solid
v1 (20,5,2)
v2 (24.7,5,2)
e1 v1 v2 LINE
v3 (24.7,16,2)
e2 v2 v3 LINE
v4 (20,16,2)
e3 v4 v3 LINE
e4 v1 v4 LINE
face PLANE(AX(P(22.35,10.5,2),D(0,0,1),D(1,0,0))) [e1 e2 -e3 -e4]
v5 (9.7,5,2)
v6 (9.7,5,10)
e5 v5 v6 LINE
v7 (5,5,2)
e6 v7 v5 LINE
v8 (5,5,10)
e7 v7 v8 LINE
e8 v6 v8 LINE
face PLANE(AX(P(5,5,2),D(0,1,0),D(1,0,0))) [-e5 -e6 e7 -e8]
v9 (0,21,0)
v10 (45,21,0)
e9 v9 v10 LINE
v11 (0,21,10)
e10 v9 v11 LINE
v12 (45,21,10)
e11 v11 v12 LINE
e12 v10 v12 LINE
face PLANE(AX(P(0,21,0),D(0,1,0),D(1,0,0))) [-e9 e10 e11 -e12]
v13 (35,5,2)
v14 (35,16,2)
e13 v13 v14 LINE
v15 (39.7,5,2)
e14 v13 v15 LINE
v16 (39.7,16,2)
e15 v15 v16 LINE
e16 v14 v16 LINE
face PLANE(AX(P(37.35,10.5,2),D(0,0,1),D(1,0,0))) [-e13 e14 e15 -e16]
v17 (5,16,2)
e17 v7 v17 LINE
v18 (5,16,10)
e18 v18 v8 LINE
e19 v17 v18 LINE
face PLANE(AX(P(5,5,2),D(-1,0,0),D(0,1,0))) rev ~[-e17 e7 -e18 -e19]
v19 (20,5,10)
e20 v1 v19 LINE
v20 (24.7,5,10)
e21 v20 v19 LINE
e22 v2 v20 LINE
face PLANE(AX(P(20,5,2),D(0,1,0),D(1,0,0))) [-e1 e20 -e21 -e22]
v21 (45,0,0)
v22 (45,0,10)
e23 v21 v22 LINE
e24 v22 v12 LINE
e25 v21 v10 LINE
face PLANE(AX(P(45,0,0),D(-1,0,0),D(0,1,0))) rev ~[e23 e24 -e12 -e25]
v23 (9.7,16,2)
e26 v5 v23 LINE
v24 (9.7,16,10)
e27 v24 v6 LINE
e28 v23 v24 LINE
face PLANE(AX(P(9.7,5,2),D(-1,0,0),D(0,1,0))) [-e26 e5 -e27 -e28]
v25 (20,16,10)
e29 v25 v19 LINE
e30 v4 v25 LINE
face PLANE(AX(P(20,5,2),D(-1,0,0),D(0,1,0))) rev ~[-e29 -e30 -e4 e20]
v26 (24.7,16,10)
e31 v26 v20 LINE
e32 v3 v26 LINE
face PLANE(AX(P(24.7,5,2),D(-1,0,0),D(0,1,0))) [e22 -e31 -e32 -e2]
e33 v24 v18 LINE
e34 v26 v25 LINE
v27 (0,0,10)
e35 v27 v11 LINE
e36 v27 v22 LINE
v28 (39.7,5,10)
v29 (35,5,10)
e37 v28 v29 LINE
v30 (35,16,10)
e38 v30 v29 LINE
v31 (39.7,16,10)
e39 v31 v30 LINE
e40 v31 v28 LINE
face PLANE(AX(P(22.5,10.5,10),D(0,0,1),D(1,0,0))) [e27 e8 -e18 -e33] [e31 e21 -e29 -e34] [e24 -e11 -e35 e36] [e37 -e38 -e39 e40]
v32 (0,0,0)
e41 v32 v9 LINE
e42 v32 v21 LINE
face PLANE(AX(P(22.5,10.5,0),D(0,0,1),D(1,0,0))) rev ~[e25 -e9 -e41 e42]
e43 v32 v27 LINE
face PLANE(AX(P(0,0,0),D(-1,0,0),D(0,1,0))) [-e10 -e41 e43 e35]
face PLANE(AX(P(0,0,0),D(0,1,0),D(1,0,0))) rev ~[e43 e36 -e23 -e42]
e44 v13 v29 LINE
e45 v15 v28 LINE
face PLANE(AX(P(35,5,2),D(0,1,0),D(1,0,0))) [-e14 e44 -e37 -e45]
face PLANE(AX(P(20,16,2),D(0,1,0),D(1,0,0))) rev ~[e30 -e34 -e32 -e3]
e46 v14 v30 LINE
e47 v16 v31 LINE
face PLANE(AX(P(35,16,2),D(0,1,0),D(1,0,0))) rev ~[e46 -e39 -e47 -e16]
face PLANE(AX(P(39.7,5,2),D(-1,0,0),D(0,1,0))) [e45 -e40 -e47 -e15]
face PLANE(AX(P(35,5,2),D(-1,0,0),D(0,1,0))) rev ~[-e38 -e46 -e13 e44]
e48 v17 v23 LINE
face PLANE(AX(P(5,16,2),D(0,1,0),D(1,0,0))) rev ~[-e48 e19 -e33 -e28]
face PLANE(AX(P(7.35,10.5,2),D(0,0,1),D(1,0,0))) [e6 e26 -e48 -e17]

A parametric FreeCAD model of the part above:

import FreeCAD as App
import Part
import Sketcher

V = App.Vector

doc = App.newDocument("Part")
body = doc.addObject("PartDesign::Body", "Body")

# Sketch on XY plane
sketch1 = doc.addObject("Sketcher::SketchObject", "Sketch")
body.addObject(sketch1)
sketch1.AttachmentSupport = (doc.XY_Plane, [""])
sketch1.MapMode = "FlatFace"
sketch1.addGeometry(Part.LineSegment(V(15, 11, 0), V(15, 0, 0)), False)
sketch1.addGeometry(Part.LineSegment(V(15, 0, 0), V(19.7, 0, 0)), False)
sketch1.addGeometry(Part.LineSegment(V(19.7, 0, 0), V(19.7, 11, 0)), False)
sketch1.addGeometry(Part.LineSegment(V(19.7, 11, 0), V(15, 11, 0)), False)
sketch1.addConstraint(Sketcher.Constraint("Coincident", 0, 2, 1, 1))
sketch1.addConstraint(Sketcher.Constraint("Coincident", 1, 2, 2, 1))
sketch1.addConstraint(Sketcher.Constraint("Coincident", 2, 2, 3, 1))
sketch1.addConstraint(Sketcher.Constraint("Coincident", 3, 2, 0, 1))
sketch1.addConstraint(Sketcher.Constraint("Vertical", 0))
sketch1.addConstraint(Sketcher.Constraint("Horizontal", 1))
sketch1.addConstraint(Sketcher.Constraint("Vertical", 2))
sketch1.addConstraint(Sketcher.Constraint("Horizontal", 3))
sketch1.addConstraint(Sketcher.Constraint("PointOnObject", 0, 2, -1))
sketch1.addConstraint(Sketcher.Constraint("DistanceY", 0, 2, 0, 1, 11.0))
sketch1.addConstraint(Sketcher.Constraint("DistanceX", 1, 1, 1, 2, 4.7))
sketch1.addConstraint(Sketcher.Constraint("DistanceX", -1, 1, 0, 2, 15.0))
pad1 = doc.addObject("PartDesign::Pad", "Pad")
body.addObject(pad1)
pad1.Profile = sketch1
pad1.Length = 12
body2 = doc.addObject("PartDesign::Body", "Body001")

# Sketch on XY plane
sketch2 = doc.addObject("Sketcher::SketchObject", "Sketch001")
body2.addObject(sketch2)
sketch2.AttachmentSupport = (doc.getObject("XY_Plane001"), [""])
sketch2.MapMode = "FlatFace"
sketch2.addGeometry(Part.LineSegment(V(30, 11, 0), V(30, 0, 0)), False)
sketch2.addGeometry(Part.LineSegment(V(30, 0, 0), V(34.7, 0, 0)), False)
sketch2.addGeometry(Part.LineSegment(V(34.7, 0, 0), V(34.7, 11, 0)), False)
sketch2.addGeometry(Part.LineSegment(V(34.7, 11, 0), V(30, 11, 0)), False)
sketch2.addConstraint(Sketcher.Constraint("Coincident", 0, 2, 1, 1))
sketch2.addConstraint(Sketcher.Constraint("Coincident", 1, 2, 2, 1))
sketch2.addConstraint(Sketcher.Constraint("Coincident", 2, 2, 3, 1))
sketch2.addConstraint(Sketcher.Constraint("Coincident", 3, 2, 0, 1))
sketch2.addConstraint(Sketcher.Constraint("Vertical", 0))
sketch2.addConstraint(Sketcher.Constraint("Horizontal", 1))
sketch2.addConstraint(Sketcher.Constraint("Vertical", 2))
sketch2.addConstraint(Sketcher.Constraint("Horizontal", 3))
sketch2.addConstraint(Sketcher.Constraint("PointOnObject", 0, 2, -1))
sketch2.addConstraint(Sketcher.Constraint("DistanceY", 0, 2, 0, 1, 11.0))
sketch2.addConstraint(Sketcher.Constraint("DistanceX", 1, 1, 1, 2, 4.7))
sketch2.addConstraint(Sketcher.Constraint("DistanceX", -1, 1, 0, 2, 30.0))
pad2 = doc.addObject("PartDesign::Pad", "Pad001")
body2.addObject(pad2)
pad2.Profile = sketch2
pad2.Length = 12
body3 = doc.addObject("PartDesign::Body", "Body002")
body3.AllowCompound = True

# Sketch on XY plane
sketch3 = doc.addObject("Sketcher::SketchObject", "Sketch002")
body3.addObject(sketch3)
sketch3.AttachmentSupport = (doc.getObject("XY_Plane002"), [""])
sketch3.MapMode = "FlatFace"
sketch3.addGeometry(Part.LineSegment(V(0, 11, 0), V(0, 0, 0)), False)
sketch3.addGeometry(Part.LineSegment(V(0, 0, 0), V(4.7, 0, 0)), False)
sketch3.addGeometry(Part.LineSegment(V(4.7, 0, 0), V(4.7, 11, 0)), False)
sketch3.addGeometry(Part.LineSegment(V(4.7, 11, 0), V(0, 11, 0)), False)
sketch3.addConstraint(Sketcher.Constraint("Coincident", 0, 2, 1, 1))
sketch3.addConstraint(Sketcher.Constraint("Coincident", 1, 2, 2, 1))
sketch3.addConstraint(Sketcher.Constraint("Coincident", 2, 2, 3, 1))
sketch3.addConstraint(Sketcher.Constraint("Coincident", 3, 2, 0, 1))
sketch3.addConstraint(Sketcher.Constraint("Vertical", 0))
sketch3.addConstraint(Sketcher.Constraint("Horizontal", 1))
sketch3.addConstraint(Sketcher.Constraint("Vertical", 2))
sketch3.addConstraint(Sketcher.Constraint("Horizontal", 3))
sketch3.addConstraint(Sketcher.Constraint("Coincident", 0, 2, -1, 1))
sketch3.addConstraint(Sketcher.Constraint("DistanceY", 0, 2, 0, 1, 11.0))
sketch3.addConstraint(Sketcher.Constraint("DistanceX", 1, 1, 1, 2, 4.7))
pad3 = doc.addObject("PartDesign::Pad", "Pad002")
body3.addObject(pad3)
pad3.Profile = sketch3
pad3.Length = 12
doc.recompute()

boolean = doc.addObject("PartDesign::Boolean", "Boolean")
body3.addObject(boolean)
boolean.Type = "Fuse"
boolean.addObjects([body])
doc.recompute()

boolean2 = doc.addObject("PartDesign::Boolean", "Boolean001")
body3.addObject(boolean2)
boolean2.Type = "Fuse"
boolean2.addObjects([body2])
body4 = doc.addObject("PartDesign::Body", "Body003")
body4.AllowCompound = True
doc.recompute()

body3.Placement = App.Placement(V(5, 5, 2), App.Rotation(V(0, 0, 1), 0))
boolean3 = doc.addObject("PartDesign::Boolean", "Boolean002")
body4.addObject(boolean3)
boolean3.Type = "Fuse"
boolean3.addObjects([body3])
body5 = doc.addObject("PartDesign::Body", "Body004")

# Sketch on XY plane
sketch4 = doc.addObject("Sketcher::SketchObject", "Sketch003")
body5.addObject(sketch4)
sketch4.AttachmentSupport = (doc.getObject("XY_Plane004"), [""])
sketch4.MapMode = "FlatFace"
sketch4.addGeometry(Part.LineSegment(V(0, 21, 0), V(0, 0, 0)), False)
sketch4.addGeometry(Part.LineSegment(V(0, 0, 0), V(45, 0, 0)), False)
sketch4.addGeometry(Part.LineSegment(V(45, 0, 0), V(45, 21, 0)), False)
sketch4.addGeometry(Part.LineSegment(V(45, 21, 0), V(0, 21, 0)), False)
sketch4.addConstraint(Sketcher.Constraint("Coincident", 0, 2, 1, 1))
sketch4.addConstraint(Sketcher.Constraint("Coincident", 1, 2, 2, 1))
sketch4.addConstraint(Sketcher.Constraint("Coincident", 2, 2, 3, 1))
sketch4.addConstraint(Sketcher.Constraint("Coincident", 3, 2, 0, 1))
sketch4.addConstraint(Sketcher.Constraint("Vertical", 0))
sketch4.addConstraint(Sketcher.Constraint("Horizontal", 1))
sketch4.addConstraint(Sketcher.Constraint("Vertical", 2))
sketch4.addConstraint(Sketcher.Constraint("Horizontal", 3))
sketch4.addConstraint(Sketcher.Constraint("Coincident", 0, 2, -1, 1))
sketch4.addConstraint(Sketcher.Constraint("DistanceX", 1, 1, 1, 2, 45.0))
sketch4.addConstraint(Sketcher.Constraint("DistanceY", 0, 2, 0, 1, 21.0))
pad4 = doc.addObject("PartDesign::Pad", "Pad003")
body5.addObject(pad4)
pad4.Profile = sketch4
pad4.Length = 10
doc.recompute()

boolean4 = doc.addObject("PartDesign::Boolean", "Boolean003")
body5.addObject(boolean4)
boolean4.Type = "Cut"
boolean4.addObjects([body4])

doc.recompute()
